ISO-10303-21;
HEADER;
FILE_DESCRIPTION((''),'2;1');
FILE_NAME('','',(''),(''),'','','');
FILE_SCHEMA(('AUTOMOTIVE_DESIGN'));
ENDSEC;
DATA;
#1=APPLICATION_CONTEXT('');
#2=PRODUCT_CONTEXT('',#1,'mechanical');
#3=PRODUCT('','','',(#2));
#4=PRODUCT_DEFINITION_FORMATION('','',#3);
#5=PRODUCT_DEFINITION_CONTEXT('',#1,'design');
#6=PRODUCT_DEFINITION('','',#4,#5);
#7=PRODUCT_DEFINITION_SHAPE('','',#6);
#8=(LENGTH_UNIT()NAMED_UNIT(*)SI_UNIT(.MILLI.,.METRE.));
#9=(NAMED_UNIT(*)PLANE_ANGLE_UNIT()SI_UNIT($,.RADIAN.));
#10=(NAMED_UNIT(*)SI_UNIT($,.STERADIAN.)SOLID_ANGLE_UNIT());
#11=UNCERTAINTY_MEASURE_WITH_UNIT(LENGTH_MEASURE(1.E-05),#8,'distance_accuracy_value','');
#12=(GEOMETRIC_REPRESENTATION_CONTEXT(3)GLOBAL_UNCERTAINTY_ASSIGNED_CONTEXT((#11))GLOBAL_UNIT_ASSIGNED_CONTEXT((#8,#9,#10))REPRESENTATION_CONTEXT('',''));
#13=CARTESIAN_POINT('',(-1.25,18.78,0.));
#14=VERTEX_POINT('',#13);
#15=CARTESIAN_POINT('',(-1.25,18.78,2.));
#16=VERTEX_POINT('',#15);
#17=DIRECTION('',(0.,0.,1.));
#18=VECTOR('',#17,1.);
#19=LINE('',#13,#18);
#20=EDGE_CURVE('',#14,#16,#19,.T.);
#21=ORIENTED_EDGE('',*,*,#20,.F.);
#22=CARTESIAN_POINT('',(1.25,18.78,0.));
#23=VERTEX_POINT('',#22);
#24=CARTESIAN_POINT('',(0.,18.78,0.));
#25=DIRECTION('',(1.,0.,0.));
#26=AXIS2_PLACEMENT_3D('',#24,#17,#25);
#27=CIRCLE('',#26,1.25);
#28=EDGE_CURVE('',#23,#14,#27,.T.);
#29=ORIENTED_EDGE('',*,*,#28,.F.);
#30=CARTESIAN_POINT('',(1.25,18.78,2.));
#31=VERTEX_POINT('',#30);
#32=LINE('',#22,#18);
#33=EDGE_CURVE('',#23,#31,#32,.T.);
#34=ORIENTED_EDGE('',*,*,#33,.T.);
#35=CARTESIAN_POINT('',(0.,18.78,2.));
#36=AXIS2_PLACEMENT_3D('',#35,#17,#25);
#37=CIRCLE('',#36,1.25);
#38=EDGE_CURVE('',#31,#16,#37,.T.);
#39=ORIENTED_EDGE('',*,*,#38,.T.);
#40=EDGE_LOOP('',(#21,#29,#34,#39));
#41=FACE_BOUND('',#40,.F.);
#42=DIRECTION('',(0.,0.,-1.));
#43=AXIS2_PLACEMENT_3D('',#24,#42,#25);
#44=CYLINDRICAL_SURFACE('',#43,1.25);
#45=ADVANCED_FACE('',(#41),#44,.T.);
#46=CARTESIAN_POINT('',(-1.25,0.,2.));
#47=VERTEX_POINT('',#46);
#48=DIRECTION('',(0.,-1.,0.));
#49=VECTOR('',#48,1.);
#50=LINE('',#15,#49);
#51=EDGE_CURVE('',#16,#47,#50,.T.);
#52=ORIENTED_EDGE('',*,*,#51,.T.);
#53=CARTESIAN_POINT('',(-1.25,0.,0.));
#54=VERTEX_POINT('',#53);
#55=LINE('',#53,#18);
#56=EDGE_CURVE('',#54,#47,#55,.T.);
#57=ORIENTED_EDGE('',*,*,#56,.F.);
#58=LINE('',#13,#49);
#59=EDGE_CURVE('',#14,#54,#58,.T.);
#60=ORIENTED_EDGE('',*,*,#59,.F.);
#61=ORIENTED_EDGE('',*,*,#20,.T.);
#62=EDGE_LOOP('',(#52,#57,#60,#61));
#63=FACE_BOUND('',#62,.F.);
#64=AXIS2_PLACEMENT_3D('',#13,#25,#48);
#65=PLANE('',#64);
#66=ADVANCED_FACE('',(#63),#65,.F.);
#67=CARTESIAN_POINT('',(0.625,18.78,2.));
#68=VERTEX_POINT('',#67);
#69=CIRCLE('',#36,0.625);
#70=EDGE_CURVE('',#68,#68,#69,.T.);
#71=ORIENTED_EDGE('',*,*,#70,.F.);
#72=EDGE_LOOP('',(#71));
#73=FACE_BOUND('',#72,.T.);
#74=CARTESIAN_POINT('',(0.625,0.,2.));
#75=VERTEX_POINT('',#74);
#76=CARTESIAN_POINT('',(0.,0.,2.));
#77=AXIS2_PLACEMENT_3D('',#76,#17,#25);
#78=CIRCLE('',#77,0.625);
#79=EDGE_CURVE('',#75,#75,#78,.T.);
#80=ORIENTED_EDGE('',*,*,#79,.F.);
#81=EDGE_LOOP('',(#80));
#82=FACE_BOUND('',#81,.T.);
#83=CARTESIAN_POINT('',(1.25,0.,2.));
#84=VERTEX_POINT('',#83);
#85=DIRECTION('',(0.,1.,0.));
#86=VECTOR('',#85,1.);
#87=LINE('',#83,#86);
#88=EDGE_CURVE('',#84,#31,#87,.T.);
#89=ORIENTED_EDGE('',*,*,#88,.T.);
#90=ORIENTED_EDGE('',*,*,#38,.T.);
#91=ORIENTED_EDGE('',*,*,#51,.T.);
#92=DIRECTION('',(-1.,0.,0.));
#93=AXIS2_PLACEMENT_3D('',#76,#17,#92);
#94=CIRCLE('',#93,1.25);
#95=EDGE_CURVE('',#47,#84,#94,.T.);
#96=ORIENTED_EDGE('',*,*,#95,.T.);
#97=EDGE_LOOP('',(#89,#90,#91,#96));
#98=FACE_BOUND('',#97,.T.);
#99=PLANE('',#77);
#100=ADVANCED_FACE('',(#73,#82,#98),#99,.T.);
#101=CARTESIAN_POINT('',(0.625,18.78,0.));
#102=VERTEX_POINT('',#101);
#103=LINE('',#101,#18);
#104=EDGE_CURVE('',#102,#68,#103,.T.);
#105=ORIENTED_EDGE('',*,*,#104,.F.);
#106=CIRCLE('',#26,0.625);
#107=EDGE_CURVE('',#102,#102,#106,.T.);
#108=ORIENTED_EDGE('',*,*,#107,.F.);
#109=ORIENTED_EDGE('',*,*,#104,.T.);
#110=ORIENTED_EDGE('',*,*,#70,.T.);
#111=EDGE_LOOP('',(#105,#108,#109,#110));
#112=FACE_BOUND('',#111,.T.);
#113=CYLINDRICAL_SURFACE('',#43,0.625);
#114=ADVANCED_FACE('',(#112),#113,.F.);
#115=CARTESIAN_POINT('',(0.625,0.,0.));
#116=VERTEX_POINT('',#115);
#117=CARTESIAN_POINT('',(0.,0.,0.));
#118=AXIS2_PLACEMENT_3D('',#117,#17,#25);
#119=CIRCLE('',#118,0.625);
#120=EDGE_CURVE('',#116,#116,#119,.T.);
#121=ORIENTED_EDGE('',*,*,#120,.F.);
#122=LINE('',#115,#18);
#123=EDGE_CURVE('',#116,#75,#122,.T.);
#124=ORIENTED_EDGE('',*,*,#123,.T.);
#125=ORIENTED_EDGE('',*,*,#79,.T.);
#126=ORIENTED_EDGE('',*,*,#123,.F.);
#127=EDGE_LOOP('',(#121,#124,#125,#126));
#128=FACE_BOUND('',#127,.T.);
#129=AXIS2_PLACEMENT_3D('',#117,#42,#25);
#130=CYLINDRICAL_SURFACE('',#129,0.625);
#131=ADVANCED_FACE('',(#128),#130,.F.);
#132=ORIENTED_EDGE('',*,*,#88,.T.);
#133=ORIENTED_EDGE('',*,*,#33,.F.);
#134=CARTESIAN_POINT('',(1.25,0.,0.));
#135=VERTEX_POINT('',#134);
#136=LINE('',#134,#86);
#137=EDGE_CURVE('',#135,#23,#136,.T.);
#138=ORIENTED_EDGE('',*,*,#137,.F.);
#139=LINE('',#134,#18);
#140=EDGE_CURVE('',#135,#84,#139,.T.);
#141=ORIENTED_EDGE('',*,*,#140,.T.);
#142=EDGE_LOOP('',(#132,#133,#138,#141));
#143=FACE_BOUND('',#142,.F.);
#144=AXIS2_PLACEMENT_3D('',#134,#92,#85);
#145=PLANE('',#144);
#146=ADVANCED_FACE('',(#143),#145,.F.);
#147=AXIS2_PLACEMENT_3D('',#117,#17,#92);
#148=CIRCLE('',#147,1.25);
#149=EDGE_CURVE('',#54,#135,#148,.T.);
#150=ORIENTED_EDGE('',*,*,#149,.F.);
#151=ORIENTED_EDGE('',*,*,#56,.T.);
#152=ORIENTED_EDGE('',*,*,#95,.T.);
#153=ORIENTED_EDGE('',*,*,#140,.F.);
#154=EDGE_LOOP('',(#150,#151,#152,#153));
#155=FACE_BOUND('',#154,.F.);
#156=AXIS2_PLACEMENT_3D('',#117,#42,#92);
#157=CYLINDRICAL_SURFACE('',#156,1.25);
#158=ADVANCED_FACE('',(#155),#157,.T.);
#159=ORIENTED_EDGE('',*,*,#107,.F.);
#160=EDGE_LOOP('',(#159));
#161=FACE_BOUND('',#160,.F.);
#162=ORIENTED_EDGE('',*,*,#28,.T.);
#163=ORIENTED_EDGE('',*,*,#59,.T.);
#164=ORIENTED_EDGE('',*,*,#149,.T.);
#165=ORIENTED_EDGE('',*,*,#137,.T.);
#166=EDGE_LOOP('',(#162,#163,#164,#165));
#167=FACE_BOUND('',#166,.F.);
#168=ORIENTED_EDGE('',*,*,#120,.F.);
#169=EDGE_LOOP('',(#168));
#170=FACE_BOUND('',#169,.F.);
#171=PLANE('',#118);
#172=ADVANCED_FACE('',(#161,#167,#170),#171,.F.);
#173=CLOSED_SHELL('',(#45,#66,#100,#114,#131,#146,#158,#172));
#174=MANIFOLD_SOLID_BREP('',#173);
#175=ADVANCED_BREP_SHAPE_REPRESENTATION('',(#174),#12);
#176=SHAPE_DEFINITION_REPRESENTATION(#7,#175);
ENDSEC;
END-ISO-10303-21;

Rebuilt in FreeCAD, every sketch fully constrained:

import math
import FreeCAD as App
import Part
import Sketcher
from FreeCAD import Vector

doc = App.newDocument("Part")
body = doc.addObject("PartDesign::Body", "Body")

sketch1 = body.newObject("Sketcher::SketchObject", "Sketch")
sketch1.AttachmentSupport = (doc.getObject("XY_Plane"), [""])
sketch1.MapMode = "FlatFace"
sketch1.addGeometry(Part.ArcOfCircle(Part.Circle(Vector(0, 0, 0), Vector(0, 0, 1), 1.2), math.radians(180), math.radians(360)), False)
sketch1.addGeometry(Part.LineSegment(Vector(1.2, 0, 0), Vector(1.2, 18.8, 0)), False)
sketch1.addGeometry(Part.ArcOfCircle(Part.Circle(Vector(0, 18.8, 0), Vector(0, 0, 1), 1.2), math.radians(0), math.radians(180)), False)
sketch1.addGeometry(Part.LineSegment(Vector(-1.2, 18.8, 0), Vector(-1.2, 0, 0)), False)
sketch1.addGeometry(Part.Circle(Vector(0, 0, 0), Vector(0, 0, 1), 0.6), False)
sketch1.addGeometry(Part.Circle(Vector(0, 18.8, 0), Vector(0, 0, 1), 0.6), False)
sketch1.addConstraint(Sketcher.Constraint("Tangent", 0, 2, 1, 1))
sketch1.addConstraint(Sketcher.Constraint("Tangent", 1, 2, 2, 1))
sketch1.addConstraint(Sketcher.Constraint("Tangent", 2, 2, 3, 1))
sketch1.addConstraint(Sketcher.Constraint("Tangent", 3, 2, 0, 1))
sketch1.addConstraint(Sketcher.Constraint("Vertical", 1))
sketch1.addConstraint(Sketcher.Constraint("Vertical", 3))
sketch1.addConstraint(Sketcher.Constraint("Coincident", 0, 3, -1, 1))
sketch1.addConstraint(Sketcher.Constraint("Coincident", 4, 3, -1, 1))
sketch1.addConstraint(Sketcher.Constraint("Coincident", 5, 3, 2, 3))
sketch1.addConstraint(Sketcher.Constraint("Equal", 4, 5))
sketch1.addConstraint(Sketcher.Constraint("Diameter", 4, 1.25))
sketch1.addConstraint(Sketcher.Constraint("Radius", 0, 1.25))
sketch1.addConstraint(Sketcher.Constraint("DistanceY", 1, 1, 1, 2, 18.78))
pad1 = body.newObject("PartDesign::Pad", "Pad")
pad1.Profile = sketch1
pad1.Length = 2

doc.recompute()
